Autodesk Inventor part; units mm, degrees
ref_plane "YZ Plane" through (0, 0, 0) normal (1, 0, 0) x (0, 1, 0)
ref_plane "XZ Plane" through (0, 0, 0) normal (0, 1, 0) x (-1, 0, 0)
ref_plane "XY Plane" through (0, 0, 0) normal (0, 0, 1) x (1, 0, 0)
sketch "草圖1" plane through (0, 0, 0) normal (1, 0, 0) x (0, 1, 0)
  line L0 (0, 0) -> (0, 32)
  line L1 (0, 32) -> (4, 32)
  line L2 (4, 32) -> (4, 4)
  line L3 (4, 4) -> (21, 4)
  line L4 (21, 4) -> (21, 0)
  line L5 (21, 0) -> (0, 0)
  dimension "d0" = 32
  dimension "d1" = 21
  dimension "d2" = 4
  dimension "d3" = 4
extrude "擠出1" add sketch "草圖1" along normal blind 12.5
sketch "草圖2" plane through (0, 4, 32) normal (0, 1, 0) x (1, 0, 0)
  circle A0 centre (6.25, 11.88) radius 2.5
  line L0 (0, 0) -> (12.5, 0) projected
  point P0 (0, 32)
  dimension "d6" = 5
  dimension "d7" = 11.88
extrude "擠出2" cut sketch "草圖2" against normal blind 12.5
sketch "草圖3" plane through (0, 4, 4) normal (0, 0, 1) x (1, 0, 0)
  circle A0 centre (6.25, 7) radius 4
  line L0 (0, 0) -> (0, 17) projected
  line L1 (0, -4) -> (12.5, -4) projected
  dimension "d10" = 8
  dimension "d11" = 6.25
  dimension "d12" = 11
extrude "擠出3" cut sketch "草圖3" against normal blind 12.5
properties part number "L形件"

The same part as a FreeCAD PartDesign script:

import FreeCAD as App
import Part
import Sketcher
Q = App.Units.Quantity


def add_polygon(sketch, points):
    """Adds a closed chain of lines whose ends are joined by coincident constraints."""
    first, n = sketch.GeometryCount, len(points)
    for a, b in zip(points, points[1:] + points[:1]):
        sketch.addGeometry(Part.LineSegment(App.Vector(*a, 0), App.Vector(*b, 0)), False)
    for i in range(n):
        sketch.addConstraint(Sketcher.Constraint("Coincident", first + i, 2, first + (i + 1) % n, 1))

doc = App.newDocument("Part")
params = doc.addObject("Spreadsheet::Sheet", "Params")
for row, (alias, value) in enumerate([
    ("sketch1_width", "21 mm"),
    ("sketch1_width2", "4 mm"),
    ("sketch1_height", "32 mm"),
    ("pad1_length", "12.5 mm"),
    ("sketch2_diameter", "5 mm"),
    ("pocket1_length", "12.5 mm"),
    ("sketch3_diameter", "8 mm"),
    ("pocket2_length", "12.5 mm"),
], start=1):
    params.set(f"A{row}", alias)
    params.set(f"B{row}", "=" + value)
    params.setAlias(f"B{row}", alias)

body = doc.addObject("PartDesign::Body", "Body")

# Sketch on YZ plane
sketch1 = doc.addObject("Sketcher::SketchObject", "Sketch")
body.addObject(sketch1)
sketch1.AttachmentSupport = (doc.YZ_Plane, [""])
sketch1.MapMode = "FlatFace"
add_polygon(sketch1, [(0, 32), (0, 0), (21, 0), (21, 4), (4, 4), (4, 32)])  # lines 0-5
sketch1.addConstraint(Sketcher.Constraint("Vertical", 0))
sketch1.addConstraint(Sketcher.Constraint("Horizontal", 1))
sketch1.addConstraint(Sketcher.Constraint("Vertical", 2))
sketch1.addConstraint(Sketcher.Constraint("Horizontal", 3))
sketch1.addConstraint(Sketcher.Constraint("Vertical", 4))
sketch1.addConstraint(Sketcher.Constraint("Horizontal", 5))
sketch1.addConstraint(Sketcher.Constraint("Coincident", 0, 2, -1, 1))
sketch1.addConstraint(Sketcher.Constraint("Equal", 5, 2))
sketch1.addConstraint(Sketcher.Constraint("DistanceX", 1, 1, 1, 2, Q("21 mm")))
sketch1.addConstraint(Sketcher.Constraint("DistanceX", 5, 2, 5, 1, Q("4 mm")))
sketch1.addConstraint(Sketcher.Constraint("DistanceY", 0, 2, 0, 1, Q("32 mm")))
sketch1.setExpression("Constraints[14]", "Params.sketch1_width")
sketch1.setExpression("Constraints[15]", "Params.sketch1_width2")
sketch1.setExpression("Constraints[16]", "Params.sketch1_height")
pad1 = doc.addObject("PartDesign::Pad", "Pad")
body.addObject(pad1)
pad1.Profile = sketch1
pad1.setExpression("Length", "Params.pad1_length")

# Sketch on XZ plane
sketch2 = doc.addObject("Sketcher::SketchObject", "Sketch001")
body.addObject(sketch2)
sketch2.AttachmentSupport = (doc.XZ_Plane, [""])
sketch2.MapMode = "FlatFace"
sketch2.AttachmentOffset = App.Placement(App.Vector(0, 0, -4), App.Rotation())
sketch2.addGeometry(Part.Circle(App.Vector(6.2, 20.1, 0), App.Vector(0, 0, 1), 2.5), False)
sketch2.addConstraint(Sketcher.Constraint("Diameter", 0, Q("5 mm")))
sketch2.addConstraint(Sketcher.Constraint("DistanceX", -1, 1, 0, 3, Q("6.25 mm")))
sketch2.addConstraint(Sketcher.Constraint("DistanceY", -1, 1, 0, 3, Q("20.12 mm")))
sketch2.setExpression("Constraints[0]", "Params.sketch2_diameter")
pocket1 = doc.addObject("PartDesign::Pocket", "Pocket")
body.addObject(pocket1)
pocket1.Profile = sketch2
pocket1.setExpression("Length", "Params.pocket1_length")
pocket1.Reversed = True

# Sketch on XY plane
sketch3 = doc.addObject("Sketcher::SketchObject", "Sketch002")
body.addObject(sketch3)
sketch3.AttachmentSupport = (doc.XY_Plane, [""])
sketch3.MapMode = "FlatFace"
sketch3.AttachmentOffset = App.Placement(App.Vector(0, 0, 4), App.Rotation())
sketch3.addGeometry(Part.Circle(App.Vector(6.2, 11, 0), App.Vector(0, 0, 1), 4), False)
sketch3.addConstraint(Sketcher.Constraint("Diameter", 0, Q("8 mm")))
sketch3.addConstraint(Sketcher.Constraint("DistanceY", -1, 1, 0, 3, Q("11 mm")))
sketch3.addConstraint(Sketcher.Constraint("DistanceX", -1, 1, 0, 3, Q("6.25 mm")))
sketch3.setExpression("Constraints[0]", "Params.sketch3_diameter")
pocket2 = doc.addObject("PartDesign::Pocket", "Pocket001")
body.addObject(pocket2)
pocket2.Profile = sketch3
pocket2.setExpression("Length", "Params.pocket2_length")

doc.recompute()
